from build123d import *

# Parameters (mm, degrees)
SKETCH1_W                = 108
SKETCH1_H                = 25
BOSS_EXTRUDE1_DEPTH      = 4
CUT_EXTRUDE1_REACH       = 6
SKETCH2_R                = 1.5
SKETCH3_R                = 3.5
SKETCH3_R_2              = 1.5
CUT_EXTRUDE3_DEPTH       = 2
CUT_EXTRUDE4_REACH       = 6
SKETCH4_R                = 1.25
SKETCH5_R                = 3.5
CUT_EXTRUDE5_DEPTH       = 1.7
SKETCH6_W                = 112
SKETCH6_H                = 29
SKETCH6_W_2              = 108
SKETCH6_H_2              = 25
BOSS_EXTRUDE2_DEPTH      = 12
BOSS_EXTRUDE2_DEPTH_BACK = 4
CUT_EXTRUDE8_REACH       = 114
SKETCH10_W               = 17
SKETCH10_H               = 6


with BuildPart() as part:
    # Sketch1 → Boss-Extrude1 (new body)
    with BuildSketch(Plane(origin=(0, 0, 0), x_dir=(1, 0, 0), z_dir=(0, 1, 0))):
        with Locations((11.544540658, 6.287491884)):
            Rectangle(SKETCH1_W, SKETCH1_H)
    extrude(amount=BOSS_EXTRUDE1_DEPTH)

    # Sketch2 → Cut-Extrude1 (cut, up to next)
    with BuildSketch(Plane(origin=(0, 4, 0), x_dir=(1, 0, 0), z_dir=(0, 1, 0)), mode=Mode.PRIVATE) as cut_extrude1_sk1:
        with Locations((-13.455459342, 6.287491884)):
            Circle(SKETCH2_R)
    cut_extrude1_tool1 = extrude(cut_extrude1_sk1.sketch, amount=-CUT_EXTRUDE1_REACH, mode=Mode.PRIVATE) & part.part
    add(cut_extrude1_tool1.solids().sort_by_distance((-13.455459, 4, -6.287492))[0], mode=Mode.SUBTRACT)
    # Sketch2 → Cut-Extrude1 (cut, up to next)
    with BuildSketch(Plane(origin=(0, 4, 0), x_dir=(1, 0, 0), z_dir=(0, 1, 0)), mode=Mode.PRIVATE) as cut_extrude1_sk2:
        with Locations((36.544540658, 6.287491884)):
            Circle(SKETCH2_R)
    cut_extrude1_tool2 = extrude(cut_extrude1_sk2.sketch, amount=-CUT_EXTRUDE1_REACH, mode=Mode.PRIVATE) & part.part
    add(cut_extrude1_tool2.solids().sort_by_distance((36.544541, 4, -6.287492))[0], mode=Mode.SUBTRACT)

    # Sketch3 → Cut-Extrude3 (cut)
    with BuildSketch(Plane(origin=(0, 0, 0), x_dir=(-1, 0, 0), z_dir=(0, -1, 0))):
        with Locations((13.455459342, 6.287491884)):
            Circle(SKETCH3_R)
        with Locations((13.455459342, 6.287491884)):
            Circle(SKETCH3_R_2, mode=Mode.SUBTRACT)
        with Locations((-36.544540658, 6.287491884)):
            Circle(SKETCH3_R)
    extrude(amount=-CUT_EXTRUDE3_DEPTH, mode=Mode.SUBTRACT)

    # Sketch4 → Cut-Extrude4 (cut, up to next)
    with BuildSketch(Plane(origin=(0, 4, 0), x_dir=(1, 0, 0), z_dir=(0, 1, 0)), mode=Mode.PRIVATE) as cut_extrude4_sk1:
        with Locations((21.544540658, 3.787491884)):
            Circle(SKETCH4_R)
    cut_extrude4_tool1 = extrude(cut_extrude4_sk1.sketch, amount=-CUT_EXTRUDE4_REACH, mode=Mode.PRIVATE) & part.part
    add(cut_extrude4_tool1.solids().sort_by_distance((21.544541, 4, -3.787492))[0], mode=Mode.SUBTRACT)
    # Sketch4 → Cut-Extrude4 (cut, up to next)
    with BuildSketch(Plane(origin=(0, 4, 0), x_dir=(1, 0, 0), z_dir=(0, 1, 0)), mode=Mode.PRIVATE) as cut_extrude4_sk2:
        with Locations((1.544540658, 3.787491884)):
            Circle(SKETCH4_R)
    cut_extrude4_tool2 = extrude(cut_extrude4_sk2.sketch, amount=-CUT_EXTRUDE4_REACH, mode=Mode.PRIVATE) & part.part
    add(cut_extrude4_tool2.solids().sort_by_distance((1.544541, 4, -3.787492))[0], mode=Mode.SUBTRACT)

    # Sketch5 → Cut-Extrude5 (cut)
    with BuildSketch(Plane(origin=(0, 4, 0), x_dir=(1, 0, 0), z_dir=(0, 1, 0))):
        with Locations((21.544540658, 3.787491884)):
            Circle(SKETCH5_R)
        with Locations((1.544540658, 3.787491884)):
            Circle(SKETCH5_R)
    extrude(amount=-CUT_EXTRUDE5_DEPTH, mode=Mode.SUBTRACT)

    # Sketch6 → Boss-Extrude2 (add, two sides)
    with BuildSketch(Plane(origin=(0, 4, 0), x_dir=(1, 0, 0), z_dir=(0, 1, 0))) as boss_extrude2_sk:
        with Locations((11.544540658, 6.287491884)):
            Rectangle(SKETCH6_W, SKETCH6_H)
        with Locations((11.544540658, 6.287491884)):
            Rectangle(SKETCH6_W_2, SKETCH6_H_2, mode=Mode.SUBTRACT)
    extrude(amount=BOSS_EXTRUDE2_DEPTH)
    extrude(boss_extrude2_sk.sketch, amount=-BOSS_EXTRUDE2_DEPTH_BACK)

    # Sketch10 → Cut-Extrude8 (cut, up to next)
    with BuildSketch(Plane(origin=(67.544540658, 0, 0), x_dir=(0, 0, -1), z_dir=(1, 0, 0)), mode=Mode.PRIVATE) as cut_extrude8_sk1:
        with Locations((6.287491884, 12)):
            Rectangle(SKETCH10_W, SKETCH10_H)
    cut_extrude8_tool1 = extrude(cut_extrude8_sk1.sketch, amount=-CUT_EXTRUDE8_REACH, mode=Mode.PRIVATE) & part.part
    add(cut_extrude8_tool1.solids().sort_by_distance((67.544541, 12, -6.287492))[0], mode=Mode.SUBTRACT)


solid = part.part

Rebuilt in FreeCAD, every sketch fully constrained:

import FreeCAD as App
import Part
import Sketcher
from FreeCAD import Vector
Q = App.Units.Quantity

doc = App.newDocument("Part")
body = doc.addObject("PartDesign::Body", "Body")

# Sketch on XZ plane
sketch1 = body.newObject("Sketcher::SketchObject", "Sketch")
sketch1.AttachmentSupport = (doc.getObject("XZ_Plane"), [""])
sketch1.MapMode = "FlatFace"
sketch1.addGeometry([
    Part.LineSegment(Vector(-42, -19, 0), Vector(-42, 6, 0)),
    Part.LineSegment(Vector(-42, 6, 0), Vector(66, 6, 0)),
    Part.LineSegment(Vector(66, 6, 0), Vector(66, -19, 0)),
    Part.LineSegment(Vector(66, -19, 0), Vector(-42, -19, 0)),
], False)
sketch1.addConstraint([
    Sketcher.Constraint("Coincident", 0, 2, 1, 1),
    Sketcher.Constraint("Coincident", 1, 2, 2, 1),
    Sketcher.Constraint("Coincident", 2, 2, 3, 1),
    Sketcher.Constraint("Coincident", 3, 2, 0, 1),
    Sketcher.Constraint("Vertical", 0),
    Sketcher.Constraint("Horizontal", 1),
    Sketcher.Constraint("Vertical", 2),
    Sketcher.Constraint("Horizontal", 3),
    Sketcher.Constraint("DistanceX", 1, 1, 1, 2, Q("108 mm")),
    Sketcher.Constraint("DistanceY", 0, 1, 0, 2, Q("25 mm")),
    Sketcher.Constraint("DistanceX", 0, 2, -1, 1, Q("42.455459 mm")),
    Sketcher.Constraint("DistanceY", -1, 1, 0, 2, Q("6.212508 mm")),
])
pad1 = body.newObject("PartDesign::Pad", "Pad")
pad1.Profile = sketch1
pad1.Length = 4
pad1.Reversed = True

# Sketch on XZ plane
sketch2 = body.newObject("Sketcher::SketchObject", "Sketch001")
sketch2.AttachmentSupport = (doc.getObject("XZ_Plane"), [""])
sketch2.MapMode = "FlatFace"
sketch2.AttachmentOffset = App.Placement(Vector(0, 0, -4), App.Rotation())
sketch2.addGeometry(Part.Circle(Vector(-13.5, -6.3, 0), Vector(0, 0, 1), 1.5), False)
sketch2.addConstraint([
    Sketcher.Constraint("Diameter", 0, Q("3 mm")),
    Sketcher.Constraint("DistanceX", 0, 3, -1, 1, Q("13.455459 mm")),
    Sketcher.Constraint("DistanceY", 0, 3, -1, 1, Q("6.287492 mm")),
])
pocket1 = body.newObject("PartDesign::Pocket", "Pocket")
pocket1.Profile = sketch2
pocket1.Type = "UpToFirst"
pocket1.Reversed = True

# Sketch on XZ plane
sketch3 = body.newObject("Sketcher::SketchObject", "Sketch002")
sketch3.AttachmentSupport = (doc.getObject("XZ_Plane"), [""])
sketch3.MapMode = "FlatFace"
sketch3.AttachmentOffset = App.Placement(Vector(0, 0, -4), App.Rotation())
sketch3.addGeometry(Part.Circle(Vector(36.5, -6.3, 0), Vector(0, 0, 1), 1.5), False)
sketch3.addConstraint([
    Sketcher.Constraint("Diameter", 0, Q("3 mm")),
    Sketcher.Constraint("DistanceX", -1, 1, 0, 3, Q("36.544541 mm")),
    Sketcher.Constraint("DistanceY", 0, 3, -1, 1, Q("6.287492 mm")),
])
pocket2 = body.newObject("PartDesign::Pocket", "Pocket001")
pocket2.Profile = sketch3
pocket2.Type = "UpToFirst"
pocket2.Reversed = True

# Sketch on XZ plane
sketch4 = body.newObject("Sketcher::SketchObject", "Sketch003")
sketch4.AttachmentSupport = (doc.getObject("XZ_Plane"), [""])
sketch4.MapMode = "FlatFace"
sketch4.addGeometry([
    Part.Circle(Vector(-13.5, -6.3, 0), Vector(0, 0, 1), 3.5),
    Part.Circle(Vector(-13.5, -6.3, 0), Vector(0, 0, 1), 1.5),
    Part.Circle(Vector(36.5, -6.3, 0), Vector(0, 0, 1), 3.5),
], False)
sketch4.addConstraint([
    Sketcher.Constraint("Coincident", 1, 3, 0, 3),
    Sketcher.Constraint("Equal", 0, 2),
    Sketcher.Constraint("Horizontal", 1, 3, 2, 3),
    Sketcher.Constraint("Diameter", 0, Q("7 mm")),
    Sketcher.Constraint("Diameter", 1, Q("3 mm")),
    Sketcher.Constraint("DistanceX", 0, 3, 2, 3, Q("50 mm")),
    Sketcher.Constraint("DistanceX", 0, 3, -1, 1, Q("13.455459 mm")),
    Sketcher.Constraint("DistanceY", 0, 3, -1, 1, Q("6.287492 mm")),
])
pocket3 = body.newObject("PartDesign::Pocket", "Pocket002")
pocket3.Profile = sketch4
pocket3.Length = 2

# Sketch on XZ plane
sketch5 = body.newObject("Sketcher::SketchObject", "Sketch004")
sketch5.AttachmentSupport = (doc.getObject("XZ_Plane"), [""])
sketch5.MapMode = "FlatFace"
sketch5.AttachmentOffset = App.Placement(Vector(0, 0, -4), App.Rotation())
sketch5.addGeometry(Part.Circle(Vector(21.5, -3.8, 0), Vector(0, 0, 1), 1.2), False)
sketch5.addConstraint([
    Sketcher.Constraint("Diameter", 0, Q("2.5 mm")),
    Sketcher.Constraint("DistanceX", -1, 1, 0, 3, Q("21.544541 mm")),
    Sketcher.Constraint("DistanceY", 0, 3, -1, 1, Q("3.787492 mm")),
])
pocket4 = body.newObject("PartDesign::Pocket", "Pocket003")
pocket4.Profile = sketch5
pocket4.Type = "UpToFirst"
pocket4.Reversed = True

# Sketch on XZ plane
sketch6 = body.newObject("Sketcher::SketchObject", "Sketch005")
sketch6.AttachmentSupport = (doc.getObject("XZ_Plane"), [""])
sketch6.MapMode = "FlatFace"
sketch6.AttachmentOffset = App.Placement(Vector(0, 0, -4), App.Rotation())
sketch6.addGeometry(Part.Circle(Vector(1.5, -3.8, 0), Vector(0, 0, 1), 1.2), False)
sketch6.addConstraint([
    Sketcher.Constraint("Diameter", 0, Q("2.5 mm")),
    Sketcher.Constraint("DistanceX", -1, 1, 0, 3, Q("1.544541 mm")),
    Sketcher.Constraint("DistanceY", 0, 3, -1, 1, Q("3.787492 mm")),
])
pocket5 = body.newObject("PartDesign::Pocket", "Pocket004")
pocket5.Profile = sketch6
pocket5.Type = "UpToFirst"
pocket5.Reversed = True

# Sketch on XZ plane
sketch7 = body.newObject("Sketcher::SketchObject", "Sketch006")
sketch7.AttachmentSupport = (doc.getObject("XZ_Plane"), [""])
sketch7.MapMode = "FlatFace"
sketch7.AttachmentOffset = App.Placement(Vector(0, 0, -4), App.Rotation())
sketch7.addGeometry([
    Part.Circle(Vector(21.5, -3.8, 0), Vector(0, 0, 1), 3.5),
    Part.Circle(Vector(1.5, -3.8, 0), Vector(0, 0, 1), 3.5),
], False)
sketch7.addConstraint([
    Sketcher.Constraint("Equal", 0, 1),
    Sketcher.Constraint("Horizontal", 0, 3, 1, 3),
    Sketcher.Constraint("Diameter", 0, Q("7 mm")),
    Sketcher.Constraint("DistanceX", 1, 3, 0, 3, Q("20 mm")),
    Sketcher.Constraint("DistanceX", -1, 1, 0, 3, Q("21.544541 mm")),
    Sketcher.Constraint("DistanceY", 0, 3, -1, 1, Q("3.787492 mm")),
])
pocket6 = body.newObject("PartDesign::Pocket", "Pocket005")
pocket6.Profile = sketch7
pocket6.Length = 1.7
pocket6.Reversed = True

# Sketch on XZ plane
sketch8 = body.newObject("Sketcher::SketchObject", "Sketch007")
sketch8.AttachmentSupport = (doc.getObject("XZ_Plane"), [""])
sketch8.MapMode = "FlatFace"
sketch8.AttachmentOffset = App.Placement(Vector(0, 0, -4), App.Rotation())
sketch8.addGeometry([
    Part.LineSegment(Vector(-44, -21, 0), Vector(-44, 8, 0)),  # 0
    Part.LineSegment(Vector(-44, 8, 0), Vector(68, 8, 0)),  # 1
    Part.LineSegment(Vector(68, 8, 0), Vector(68, -21, 0)),  # 2
    Part.LineSegment(Vector(68, -21, 0), Vector(-44, -21, 0)),  # 3
    Part.LineSegment(Vector(66, 6, 0), Vector(-42, 6, 0)),  # 4
    Part.LineSegment(Vector(-42, 6, 0), Vector(-42, -19, 0)),  # 5
    Part.LineSegment(Vector(-42, -19, 0), Vector(66, -19, 0)),  # 6
    Part.LineSegment(Vector(66, -19, 0), Vector(66, 6, 0)),  # 7
], False)
sketch8.addConstraint([
    Sketcher.Constraint("Coincident", 0, 2, 1, 1),
    Sketcher.Constraint("Coincident", 1, 2, 2, 1),
    Sketcher.Constraint("Coincident", 2, 2, 3, 1),
    Sketcher.Constraint("Coincident", 3, 2, 0, 1),
    Sketcher.Constraint("Coincident", 4, 2, 5, 1),
    Sketcher.Constraint("Coincident", 5, 2, 6, 1),
    Sketcher.Constraint("Coincident", 6, 2, 7, 1),
    Sketcher.Constraint("Coincident", 7, 2, 4, 1),
    Sketcher.Constraint("Vertical", 0),
    Sketcher.Constraint("Horizontal", 1),
    Sketcher.Constraint("Vertical", 2),
    Sketcher.Constraint("Horizontal", 3),
    Sketcher.Constraint("Horizontal", 4),
    Sketcher.Constraint("Vertical", 5),
    Sketcher.Constraint("Horizontal", 6),
    Sketcher.Constraint("Vertical", 7),
    Sketcher.Constraint("DistanceX", 1, 1, 1, 2, Q("112 mm")),
    Sketcher.Constraint("DistanceX", 4, 2, 4, 1, Q("108 mm")),
    Sketcher.Constraint("DistanceY", 0, 1, 0, 2, Q("29 mm")),
    Sketcher.Constraint("DistanceY", 5, 2, 5, 1, Q("25 mm")),
    Sketcher.Constraint("DistanceX", 0, 2, 4, 2, Q("2 mm")),
    Sketcher.Constraint("DistanceY", 4, 2, 0, 2, Q("2 mm")),
    Sketcher.Constraint("DistanceX", 0, 2, -1, 1, Q("44.455459 mm")),
    Sketcher.Constraint("DistanceY", -1, 1, 0, 2, Q("8.212508 mm")),
])
pad2 = body.newObject("PartDesign::Pad", "Pad001")
pad2.Profile = sketch8
pad2.Type = "TwoLengths"
pad2.Length = 12
pad2.Length2 = 4
pad2.Reversed = True

# Sketch on YZ plane
sketch9 = body.newObject("Sketcher::SketchObject", "Sketch008")
sketch9.AttachmentSupport = (doc.getObject("YZ_Plane"), [""])
sketch9.MapMode = "FlatFace"
sketch9.AttachmentOffset = App.Placement(Vector(0, 0, 67.544541), App.Rotation())
sketch9.addGeometry([
    Part.LineSegment(Vector(15, 2, 0), Vector(9, 2, 0)),
    Part.LineSegment(Vector(9, 2, 0), Vector(9, -15, 0)),
    Part.LineSegment(Vector(9, -15, 0), Vector(15, -15, 0)),
    Part.LineSegment(Vector(15, -15, 0), Vector(15, 2, 0)),
], False)
sketch9.addConstraint([
    Sketcher.Constraint("Coincident", 0, 2, 1, 1),
    Sketcher.Constraint("Coincident", 1, 2, 2, 1),
    Sketcher.Constraint("Coincident", 2, 2, 3, 1),
    Sketcher.Constraint("Coincident", 3, 2, 0, 1),
    Sketcher.Constraint("Horizontal", 0),
    Sketcher.Constraint("Vertical", 1),
    Sketcher.Constraint("Horizontal", 2),
    Sketcher.Constraint("Vertical", 3),
    Sketcher.Constraint("DistanceX", 0, 2, 0, 1, Q("6 mm")),
    Sketcher.Constraint("DistanceY", 1, 2, 1, 1, Q("17 mm")),
    Sketcher.Constraint("DistanceX", -1, 1, 0, 2, Q("9 mm")),
    Sketcher.Constraint("DistanceY", -1, 1, 0, 2, Q("2.212508 mm")),
])
pocket7 = body.newObject("PartDesign::Pocket", "Pocket006")
pocket7.Profile = sketch9
pocket7.Type = "UpToFirst"

doc.recompute()
